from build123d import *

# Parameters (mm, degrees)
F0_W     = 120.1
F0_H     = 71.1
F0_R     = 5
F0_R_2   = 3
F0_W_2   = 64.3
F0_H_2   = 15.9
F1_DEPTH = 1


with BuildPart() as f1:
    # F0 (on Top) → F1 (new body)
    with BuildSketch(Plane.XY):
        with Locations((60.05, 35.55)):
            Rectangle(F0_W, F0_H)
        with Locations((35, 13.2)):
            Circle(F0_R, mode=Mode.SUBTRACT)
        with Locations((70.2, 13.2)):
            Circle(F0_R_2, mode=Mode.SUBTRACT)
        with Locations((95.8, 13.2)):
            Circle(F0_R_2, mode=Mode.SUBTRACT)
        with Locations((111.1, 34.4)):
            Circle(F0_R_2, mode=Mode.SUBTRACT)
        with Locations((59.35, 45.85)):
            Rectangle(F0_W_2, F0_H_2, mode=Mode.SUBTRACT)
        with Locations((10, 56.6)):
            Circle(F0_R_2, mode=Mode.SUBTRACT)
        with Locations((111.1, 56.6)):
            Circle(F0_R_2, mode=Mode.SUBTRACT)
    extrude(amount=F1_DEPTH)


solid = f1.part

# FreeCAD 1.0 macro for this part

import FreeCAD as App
import Part
import Sketcher


def add_polygon(sketch, points):
    """Adds a closed chain of lines whose ends are joined by coincident constraints."""
    first, n = sketch.GeometryCount, len(points)
    for a, b in zip(points, points[1:] + points[:1]):
        sketch.addGeometry(Part.LineSegment(App.Vector(*a, 0), App.Vector(*b, 0)), False)
    for i in range(n):
        sketch.addConstraint(Sketcher.Constraint("Coincident", first + i, 2, first + (i + 1) % n, 1))

doc = App.newDocument("Part")
body = doc.addObject("PartDesign::Body", "Body")

sketch1 = doc.addObject("Sketcher::SketchObject", "Sketch")
body.addObject(sketch1)
sketch1.AttachmentSupport = (doc.XY_Plane, [""])
sketch1.MapMode = "FlatFace"
add_polygon(sketch1, [(0, 71.1), (0, 0), (120.1, 0), (120.1, 71.1)])
sketch1.addGeometry(Part.Circle(App.Vector(35, 13.2, 0), App.Vector(0, 0, 1), 5), False)
sketch1.addGeometry(Part.Circle(App.Vector(70.2, 13.2, 0), App.Vector(0, 0, 1), 3), False)
sketch1.addGeometry(Part.Circle(App.Vector(95.8, 13.2, 0), App.Vector(0, 0, 1), 3), False)
add_polygon(sketch1, [(91.5, 37.9), (27.2, 37.9), (27.2, 53.8), (91.5, 53.8)])
sketch1.addGeometry(Part.Circle(App.Vector(10, 56.6, 0), App.Vector(0, 0, 1), 3), False)
sketch1.addGeometry(Part.Circle(App.Vector(111.1, 34.4, 0), App.Vector(0, 0, 1), 3), False)
sketch1.addGeometry(Part.Circle(App.Vector(111.1, 56.6, 0), App.Vector(0, 0, 1), 3), False)
sketch1.addConstraint([
    Sketcher.Constraint("Vertical", 0),
    Sketcher.Constraint("Horizontal", 1),
    Sketcher.Constraint("Vertical", 2),
    Sketcher.Constraint("Horizontal", 3),
    Sketcher.Constraint("Horizontal", 7),
    Sketcher.Constraint("Vertical", 8),
    Sketcher.Constraint("Horizontal", 9),
    Sketcher.Constraint("Vertical", 10),
    Sketcher.Constraint("Coincident", 0, 2, -1, 1),
    Sketcher.Constraint("Equal", 5, 6),
    Sketcher.Constraint("Equal", 6, 11),
    Sketcher.Constraint("Equal", 11, 12),
    Sketcher.Constraint("Equal", 12, 13),
    Sketcher.Constraint("Horizontal", 4, 3, 5, 3),
    Sketcher.Constraint("Horizontal", 5, 3, 6, 3),
    Sketcher.Constraint("Horizontal", 11, 3, 13, 3),
    Sketcher.Constraint("Vertical", 12, 3, 13, 3),
    Sketcher.Constraint("Diameter", 4, 10.0),
    Sketcher.Constraint("Diameter", 5, 6.0),
    Sketcher.Constraint("DistanceX", 1, 1, 1, 2, 120.1),
    Sketcher.Constraint("DistanceX", 7, 2, 7, 1, 64.3),
    Sketcher.Constraint("DistanceY", 0, 2, 0, 1, 71.1),
    Sketcher.Constraint("DistanceY", 8, 1, 8, 2, 15.9),
    Sketcher.Constraint("DistanceX", -1, 1, 4, 3, 35.0),
    Sketcher.Constraint("DistanceX", -1, 1, 11, 3, 10.0),
    Sketcher.Constraint("DistanceX", 12, 3, 1, 2, 9.0),
    Sketcher.Constraint("DistanceX", 7, 2, 5, 3, 43.0),
    Sketcher.Constraint("DistanceY", -1, 1, 4, 3, 13.2),
    Sketcher.Constraint("DistanceX", -1, 1, 5, 3, 70.2),
    Sketcher.Constraint("DistanceX", -1, 1, 6, 3, 95.8),
    Sketcher.Constraint("DistanceY", -1, 1, 11, 3, 56.6),
    Sketcher.Constraint("DistanceY", -1, 1, 12, 3, 34.4),
    Sketcher.Constraint("DistanceY", -1, 1, 7, 2, 37.9),
])
pad1 = doc.addObject("PartDesign::Pad", "Pad")
body.addObject(pad1)
pad1.Profile = sketch1
pad1.Length = 1

doc.recompute()
